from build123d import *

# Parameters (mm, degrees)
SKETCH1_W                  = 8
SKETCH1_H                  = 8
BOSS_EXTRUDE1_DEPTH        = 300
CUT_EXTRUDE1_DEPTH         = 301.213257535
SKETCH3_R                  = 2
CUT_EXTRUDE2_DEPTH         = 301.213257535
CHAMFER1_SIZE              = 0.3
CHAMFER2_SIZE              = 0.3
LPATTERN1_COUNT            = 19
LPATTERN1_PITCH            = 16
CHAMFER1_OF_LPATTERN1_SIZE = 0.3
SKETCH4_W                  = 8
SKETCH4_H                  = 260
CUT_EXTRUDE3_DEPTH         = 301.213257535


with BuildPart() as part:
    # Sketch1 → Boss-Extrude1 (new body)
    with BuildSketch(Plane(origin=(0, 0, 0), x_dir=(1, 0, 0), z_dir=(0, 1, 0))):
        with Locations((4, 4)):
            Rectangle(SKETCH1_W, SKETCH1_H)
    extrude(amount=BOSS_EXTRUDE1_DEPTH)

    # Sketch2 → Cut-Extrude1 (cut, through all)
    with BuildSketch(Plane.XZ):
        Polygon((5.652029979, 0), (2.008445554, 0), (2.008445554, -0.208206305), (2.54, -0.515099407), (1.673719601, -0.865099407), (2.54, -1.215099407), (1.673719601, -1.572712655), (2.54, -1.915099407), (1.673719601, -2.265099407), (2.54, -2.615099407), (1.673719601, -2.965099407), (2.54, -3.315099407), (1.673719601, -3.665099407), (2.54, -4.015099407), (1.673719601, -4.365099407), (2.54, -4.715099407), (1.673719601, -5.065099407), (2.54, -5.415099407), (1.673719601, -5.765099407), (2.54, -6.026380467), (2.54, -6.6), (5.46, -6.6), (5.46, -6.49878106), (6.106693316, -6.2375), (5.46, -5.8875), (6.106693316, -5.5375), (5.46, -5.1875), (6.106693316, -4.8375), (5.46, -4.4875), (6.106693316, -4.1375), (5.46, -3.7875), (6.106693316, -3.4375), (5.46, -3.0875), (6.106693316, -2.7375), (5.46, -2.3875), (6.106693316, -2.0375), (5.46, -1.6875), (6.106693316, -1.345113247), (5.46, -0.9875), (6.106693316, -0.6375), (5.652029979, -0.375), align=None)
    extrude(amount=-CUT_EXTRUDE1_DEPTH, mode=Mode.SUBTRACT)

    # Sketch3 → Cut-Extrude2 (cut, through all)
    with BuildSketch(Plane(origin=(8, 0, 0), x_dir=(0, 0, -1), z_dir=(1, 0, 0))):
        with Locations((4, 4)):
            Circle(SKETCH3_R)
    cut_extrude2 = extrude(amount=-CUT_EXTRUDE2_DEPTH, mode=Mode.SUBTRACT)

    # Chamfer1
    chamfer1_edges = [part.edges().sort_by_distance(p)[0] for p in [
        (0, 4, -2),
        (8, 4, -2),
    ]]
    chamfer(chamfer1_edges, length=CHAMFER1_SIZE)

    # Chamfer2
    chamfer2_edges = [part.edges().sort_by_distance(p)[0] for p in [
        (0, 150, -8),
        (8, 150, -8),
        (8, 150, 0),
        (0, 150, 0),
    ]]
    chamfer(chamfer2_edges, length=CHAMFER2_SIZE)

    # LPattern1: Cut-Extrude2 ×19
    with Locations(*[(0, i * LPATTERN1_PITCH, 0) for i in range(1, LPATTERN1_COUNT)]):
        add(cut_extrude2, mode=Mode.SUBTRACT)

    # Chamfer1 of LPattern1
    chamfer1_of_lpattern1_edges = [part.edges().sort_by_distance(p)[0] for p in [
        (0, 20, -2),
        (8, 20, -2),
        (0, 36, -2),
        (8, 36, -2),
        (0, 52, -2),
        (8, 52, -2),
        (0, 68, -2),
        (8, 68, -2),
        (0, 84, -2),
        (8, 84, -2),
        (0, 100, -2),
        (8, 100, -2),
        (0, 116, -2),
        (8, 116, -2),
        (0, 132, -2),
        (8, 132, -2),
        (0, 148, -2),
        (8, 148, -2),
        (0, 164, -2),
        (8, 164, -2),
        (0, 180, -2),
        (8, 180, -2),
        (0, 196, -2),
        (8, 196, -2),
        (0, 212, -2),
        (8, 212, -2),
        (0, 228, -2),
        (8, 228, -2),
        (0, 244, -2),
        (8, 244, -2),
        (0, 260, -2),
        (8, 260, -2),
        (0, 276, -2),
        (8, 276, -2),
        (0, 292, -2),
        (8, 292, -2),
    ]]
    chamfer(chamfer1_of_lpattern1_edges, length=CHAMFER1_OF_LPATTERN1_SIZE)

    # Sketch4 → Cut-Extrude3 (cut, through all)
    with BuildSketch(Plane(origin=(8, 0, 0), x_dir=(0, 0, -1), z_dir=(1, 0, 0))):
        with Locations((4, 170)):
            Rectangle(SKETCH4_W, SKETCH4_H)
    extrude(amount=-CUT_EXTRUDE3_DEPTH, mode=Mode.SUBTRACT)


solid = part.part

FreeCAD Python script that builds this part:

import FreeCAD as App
import Part
import Sketcher
Q = App.Units.Quantity


def edges_at(feature, points):
    """Names of the edges that pass closest to the given points."""
    edges = feature.Shape.Edges
    near = lambda p: min(range(len(edges)), key=lambda i: edges[i].distToShape(Part.Vertex(*p))[0])
    return sorted({f"Edge{near(p) + 1}" for p in points})


def add_polygon(sketch, points):
    """Adds a closed chain of lines whose ends are joined by coincident constraints."""
    first, n = sketch.GeometryCount, len(points)
    for a, b in zip(points, points[1:] + points[:1]):
        sketch.addGeometry(Part.LineSegment(App.Vector(*a, 0), App.Vector(*b, 0)), False)
    for i in range(n):
        sketch.addConstraint(Sketcher.Constraint("Coincident", first + i, 2, first + (i + 1) % n, 1))

doc = App.newDocument("Part")
params = doc.addObject("Spreadsheet::Sheet", "Params")
for row, (alias, value) in enumerate([
    ("sketch1_width", "8 mm"),
    ("pad1_length", "300 mm"),
    ("sketch2_width", "2.92 mm"),
    ("sketch3_diameter", "4 mm"),
    ("chamfer_size", "0.3 mm"),
    ("chamfer2_size", "0.3 mm"),
    ("linearpattern_pitch", "16 mm"),
    ("chamfer3_size", "0.3 mm"),
    ("sketch4_width", "260 mm"),
    ("sketch4_height", "8 mm"),
], start=1):
    params.set(f"A{row}", alias)
    params.set(f"B{row}", "=" + value)
    params.setAlias(f"B{row}", alias)

body = doc.addObject("PartDesign::Body", "Body")

sketch1 = body.newObject("Sketcher::SketchObject", "Sketch")
sketch1.AttachmentSupport = (doc.getObject("XZ_Plane"), [""])
sketch1.MapMode = "FlatFace"
add_polygon(sketch1, [(0, -8), (0, 0), (8, 0), (8, -8)])
sketch1.addConstraint([
    Sketcher.Constraint("Vertical", 0),
    Sketcher.Constraint("Horizontal", 1),
    Sketcher.Constraint("Vertical", 2),
    Sketcher.Constraint("Horizontal", 3),
    Sketcher.Constraint("Coincident", 0, 2, -1, 1),
    Sketcher.Constraint("Equal", 3, 0),
    Sketcher.Constraint("DistanceX", 1, 1, 1, 2, Q("8 mm")),
])
sketch1.setExpression("Constraints[10]", "Params.sketch1_width")
pad1 = body.newObject("PartDesign::Pad", "Pad")
pad1.Profile = sketch1
pad1.setExpression("Length", "Params.pad1_length")
pad1.Reversed = True

sketch2 = body.newObject("Sketcher::SketchObject", "Sketch001")
sketch2.AttachmentSupport = (doc.getObject("XZ_Plane"), [""])
sketch2.MapMode = "FlatFace"
add_polygon(sketch2, [(5.65, 0), (2.01, 0), (2.01, -0.21), (2.54, -0.52), (1.67, -0.87), (2.54, -1.22), (1.67, -1.57), (2.54, -1.92), (1.67, -2.27), (2.54, -2.62), (1.67, -2.97), (2.54, -3.32), (1.67, -3.67), (2.54, -4.02), (1.67, -4.37), (2.54, -4.72), (1.67, -5.07), (2.54, -5.42), (1.67, -5.77), (2.54, -6.03), (2.54, -6.6), (5.46, -6.6), (5.46, -6.5), (6.11, -6.24), (5.46, -5.89), (6.11, -5.54), (5.46, -5.19), (6.11, -4.84), (5.46, -4.49), (6.11, -4.14), (5.46, -3.79), (6.11, -3.44), (5.46, -3.09), (6.11, -2.74), (5.46, -2.39), (6.11, -2.04), (5.46, -1.69), (6.11, -1.35), (5.46, -0.99), (6.11, -0.64), (5.65, -0.38)])
sketch2.addConstraint([
    Sketcher.Constraint("Horizontal", 0),
    Sketcher.Constraint("Vertical", 1),
    Sketcher.Constraint("Vertical", 19),
    Sketcher.Constraint("Horizontal", 20),
    Sketcher.Constraint("Vertical", 21),
    Sketcher.Constraint("Vertical", 40),
    Sketcher.Constraint("PointOnObject", 0, 2, -1),
    Sketcher.Constraint("Parallel", 3, 7),
    Sketcher.Constraint("Parallel", 4, 8),
    Sketcher.Constraint("Parallel", 7, 9),
    Sketcher.Constraint("Parallel", 8, 10),
    Sketcher.Constraint("Parallel", 9, 11),
    Sketcher.Constraint("Parallel", 10, 12),
    Sketcher.Constraint("Parallel", 11, 13),
    Sketcher.Constraint("Parallel", 12, 14),
    Sketcher.Constraint("Parallel", 13, 15),
    Sketcher.Constraint("Parallel", 14, 16),
    Sketcher.Constraint("Parallel", 15, 17),
    Sketcher.Constraint("Parallel", 17, 22),
    Sketcher.Constraint("Parallel", 23, 25),
    Sketcher.Constraint("Parallel", 24, 26),
    Sketcher.Constraint("Parallel", 25, 27),
    Sketcher.Constraint("Parallel", 26, 28),
    Sketcher.Constraint("Parallel", 27, 29),
    Sketcher.Constraint("Parallel", 28, 30),
    Sketcher.Constraint("Parallel", 29, 31),
    Sketcher.Constraint("Parallel", 30, 32),
    Sketcher.Constraint("Parallel", 31, 33),
    Sketcher.Constraint("Parallel", 32, 34),
    Sketcher.Constraint("Parallel", 33, 35),
    Sketcher.Constraint("Parallel", 34, 38),
    Sketcher.Constraint("Parallel", 2, 39),
    Sketcher.Constraint("Vertical", 2, 2, 4, 2),
    Sketcher.Constraint("Vertical", 3, 2, 5, 2),
    Sketcher.Constraint("Vertical", 4, 2, 6, 2),
    Sketcher.Constraint("Vertical", 5, 2, 7, 2),
    Sketcher.Constraint("Vertical", 6, 2, 8, 2),
    Sketcher.Constraint("Vertical", 7, 2, 9, 2),
    Sketcher.Constraint("Vertical", 8, 2, 10, 2),
    Sketcher.Constraint("Vertical", 9, 2, 11, 2),
    Sketcher.Constraint("Vertical", 10, 2, 12, 2),
    Sketcher.Constraint("Vertical", 11, 2, 13, 2),
    Sketcher.Constraint("Vertical", 12, 2, 14, 2),
    Sketcher.Constraint("Vertical", 13, 2, 15, 2),
    Sketcher.Constraint("Vertical", 14, 2, 16, 2),
    Sketcher.Constraint("Vertical", 15, 2, 17, 2),
    Sketcher.Constraint("Vertical", 16, 2, 18, 2),
    Sketcher.Constraint("Vertical", 21, 2, 23, 2),
    Sketcher.Constraint("Vertical", 22, 2, 24, 2),
    Sketcher.Constraint("Vertical", 23, 2, 25, 2),
    Sketcher.Constraint("Vertical", 24, 2, 26, 2),
    Sketcher.Constraint("Vertical", 25, 2, 27, 2),
    Sketcher.Constraint("Vertical", 26, 2, 28, 2),
    Sketcher.Constraint("Vertical", 27, 2, 29, 2),
    Sketcher.Constraint("Vertical", 28, 2, 30, 2),
    Sketcher.Constraint("Vertical", 29, 2, 31, 2),
    Sketcher.Constraint("Vertical", 30, 2, 32, 2),
    Sketcher.Constraint("Vertical", 31, 2, 33, 2),
    Sketcher.Constraint("Vertical", 32, 2, 34, 2),
    Sketcher.Constraint("Vertical", 33, 2, 35, 2),
    Sketcher.Constraint("Vertical", 34, 2, 36, 2),
    Sketcher.Constraint("Vertical", 35, 2, 37, 2),
    Sketcher.Constraint("Vertical", 36, 2, 38, 2),
    Sketcher.Constraint("Equal", 3, 4),
    Sketcher.Constraint("Equal", 23, 24),
    Sketcher.Constraint("Angle", 2, Q("-30 deg")),
    Sketcher.Constraint("Angle", 3, Q("-158 deg")),
    Sketcher.Constraint("DistanceX", 20, 1, 20, 2, Q("2.92 mm")),
    Sketcher.Constraint("DistanceY", 19, 2, -1, 1, Q("6.6 mm")),
    Sketcher.Constraint("DistanceY", 4, 2, 2, 2, Q("0.7 mm")),
    Sketcher.Constraint("DistanceY", 6, 2, 4, 2, Q("0.7 mm")),
    Sketcher.Constraint("DistanceY", 22, 2, 24, 2, Q("0.7 mm")),
    Sketcher.Constraint("DistanceY", 35, 2, 37, 2, Q("0.7 mm")),
    Sketcher.Constraint("DistanceY", 40, 1, 40, 2, Q("0.375 mm")),
    Sketcher.Constraint("DistanceX", -1, 1, 2, 2, Q("2.54 mm")),
    Sketcher.Constraint("Distance", 39, Q("0.525 mm")),
    Sketcher.Constraint("DistanceY", 19, 2, 19, 1, Q("0.57362 mm")),
    Sketcher.Constraint("DistanceY", 21, 1, 21, 2, Q("0.101219 mm")),
    Sketcher.Constraint("DistanceY", 2, 2, -1, 1, Q("0.515099 mm")),
    Sketcher.Constraint("Distance", 6, Q("0.931488 mm")),
    Sketcher.Constraint("Distance", 36, Q("0.731738 mm")),
    Sketcher.Constraint("DistanceX", 0, 2, 0, 1, Q("3.643584 mm")),
])
sketch2.setExpression("Constraints[108]", "Params.sketch2_width")
pocket1 = body.newObject("PartDesign::Pocket", "Pocket")
pocket1.Profile = sketch2
pocket1.Type = "ThroughAll"

sketch3 = body.newObject("Sketcher::SketchObject", "Sketch002")
sketch3.AttachmentSupport = (doc.getObject("YZ_Plane"), [""])
sketch3.MapMode = "FlatFace"
sketch3.AttachmentOffset = App.Placement(App.Vector(0, 0, 8), App.Rotation())
sketch3.addGeometry(Part.Circle(App.Vector(4, -4, 0), App.Vector(0, 0, 1), 2), False)
sketch3.addConstraint([
    Sketcher.Constraint("Diameter", 0, Q("4 mm")),
    Sketcher.Constraint("DistanceX", -1, 1, 0, 3, Q("4 mm")),
    Sketcher.Constraint("DistanceY", 0, 3, -1, 1, Q("4 mm")),
])
sketch3.setExpression("Constraints[0]", "Params.sketch3_diameter")
pocket2 = body.newObject("PartDesign::Pocket", "Pocket001")
pocket2.Profile = sketch3
pocket2.Type = "ThroughAll"
doc.recompute()

chamfer = body.newObject("PartDesign::Chamfer", "Chamfer")
chamfer.Base = (pocket2, edges_at(pocket2, [(0, 4, -2), (8, 4, -2)]))
chamfer.setExpression("Size", "Params.chamfer_size")
doc.recompute()

chamfer2 = body.newObject("PartDesign::Chamfer", "Chamfer001")
chamfer2.Base = (chamfer, edges_at(chamfer, [
    (0, 150, -8),
    (8, 150, -8),
    (8, 150, 0),
    (0, 150, 0),
]))
chamfer2.setExpression("Size", "Params.chamfer2_size")
doc.recompute()

linearpattern = body.newObject("PartDesign::LinearPattern", "LinearPattern")
linearpattern.Originals = [pocket2]
linearpattern.Direction = (doc.getObject("Y_Axis"), [""])
linearpattern.Mode = "offset"
linearpattern.setExpression("Offset", "Params.linearpattern_pitch")
linearpattern.Occurrences = 19
body.Tip = linearpattern
doc.recompute()

chamfer3 = body.newObject("PartDesign::Chamfer", "Chamfer002")
chamfer3.Base = (linearpattern, edges_at(linearpattern, [
    (0, 20, -2),
    (8, 20, -2),
    (0, 36, -2),
    (8, 36, -2),
    (0, 52, -2),
    (8, 52, -2),
    (0, 68, -2),
    (8, 68, -2),
    (0, 84, -2),
    (8, 84, -2),
    (0, 100, -2),
    (8, 100, -2),
    (0, 116, -2),
    (8, 116, -2),
    (0, 132, -2),
    (8, 132, -2),
    (0, 148, -2),
    (8, 148, -2),
    (0, 164, -2),
    (8, 164, -2),
    (0, 180, -2),
    (8, 180, -2),
    (0, 196, -2),
    (8, 196, -2),
    (0, 212, -2),
    (8, 212, -2),
    (0, 228, -2),
    (8, 228, -2),
    (0, 244, -2),
    (8, 244, -2),
    (0, 260, -2),
    (8, 260, -2),
    (0, 276, -2),
    (8, 276, -2),
    (0, 292, -2),
    (8, 292, -2),
]))
chamfer3.setExpression("Size", "Params.chamfer3_size")

sketch4 = body.newObject("Sketcher::SketchObject", "Sketch003")
sketch4.AttachmentSupport = (doc.getObject("YZ_Plane"), [""])
sketch4.MapMode = "FlatFace"
sketch4.AttachmentOffset = App.Placement(App.Vector(0, 0, 8), App.Rotation())
add_polygon(sketch4, [(300, 0), (40, 0), (40, -8), (300, -8)])
sketch4.addConstraint([
    Sketcher.Constraint("Horizontal", 0),
    Sketcher.Constraint("Vertical", 1),
    Sketcher.Constraint("Horizontal", 2),
    Sketcher.Constraint("Vertical", 3),
    Sketcher.Constraint("PointOnObject", 0, 2, -1),
    Sketcher.Constraint("DistanceX", 0, 2, 0, 1, Q("260 mm")),
    Sketcher.Constraint("DistanceY", 1, 2, 1, 1, Q("8 mm")),
    Sketcher.Constraint("DistanceX", -1, 1, 0, 2, Q("40 mm")),
])
sketch4.setExpression("Constraints[9]", "Params.sketch4_width")
sketch4.setExpression("Constraints[10]", "Params.sketch4_height")
pocket3 = body.newObject("PartDesign::Pocket", "Pocket002")
pocket3.Profile = sketch4
pocket3.Type = "ThroughAll"

doc.recompute()
